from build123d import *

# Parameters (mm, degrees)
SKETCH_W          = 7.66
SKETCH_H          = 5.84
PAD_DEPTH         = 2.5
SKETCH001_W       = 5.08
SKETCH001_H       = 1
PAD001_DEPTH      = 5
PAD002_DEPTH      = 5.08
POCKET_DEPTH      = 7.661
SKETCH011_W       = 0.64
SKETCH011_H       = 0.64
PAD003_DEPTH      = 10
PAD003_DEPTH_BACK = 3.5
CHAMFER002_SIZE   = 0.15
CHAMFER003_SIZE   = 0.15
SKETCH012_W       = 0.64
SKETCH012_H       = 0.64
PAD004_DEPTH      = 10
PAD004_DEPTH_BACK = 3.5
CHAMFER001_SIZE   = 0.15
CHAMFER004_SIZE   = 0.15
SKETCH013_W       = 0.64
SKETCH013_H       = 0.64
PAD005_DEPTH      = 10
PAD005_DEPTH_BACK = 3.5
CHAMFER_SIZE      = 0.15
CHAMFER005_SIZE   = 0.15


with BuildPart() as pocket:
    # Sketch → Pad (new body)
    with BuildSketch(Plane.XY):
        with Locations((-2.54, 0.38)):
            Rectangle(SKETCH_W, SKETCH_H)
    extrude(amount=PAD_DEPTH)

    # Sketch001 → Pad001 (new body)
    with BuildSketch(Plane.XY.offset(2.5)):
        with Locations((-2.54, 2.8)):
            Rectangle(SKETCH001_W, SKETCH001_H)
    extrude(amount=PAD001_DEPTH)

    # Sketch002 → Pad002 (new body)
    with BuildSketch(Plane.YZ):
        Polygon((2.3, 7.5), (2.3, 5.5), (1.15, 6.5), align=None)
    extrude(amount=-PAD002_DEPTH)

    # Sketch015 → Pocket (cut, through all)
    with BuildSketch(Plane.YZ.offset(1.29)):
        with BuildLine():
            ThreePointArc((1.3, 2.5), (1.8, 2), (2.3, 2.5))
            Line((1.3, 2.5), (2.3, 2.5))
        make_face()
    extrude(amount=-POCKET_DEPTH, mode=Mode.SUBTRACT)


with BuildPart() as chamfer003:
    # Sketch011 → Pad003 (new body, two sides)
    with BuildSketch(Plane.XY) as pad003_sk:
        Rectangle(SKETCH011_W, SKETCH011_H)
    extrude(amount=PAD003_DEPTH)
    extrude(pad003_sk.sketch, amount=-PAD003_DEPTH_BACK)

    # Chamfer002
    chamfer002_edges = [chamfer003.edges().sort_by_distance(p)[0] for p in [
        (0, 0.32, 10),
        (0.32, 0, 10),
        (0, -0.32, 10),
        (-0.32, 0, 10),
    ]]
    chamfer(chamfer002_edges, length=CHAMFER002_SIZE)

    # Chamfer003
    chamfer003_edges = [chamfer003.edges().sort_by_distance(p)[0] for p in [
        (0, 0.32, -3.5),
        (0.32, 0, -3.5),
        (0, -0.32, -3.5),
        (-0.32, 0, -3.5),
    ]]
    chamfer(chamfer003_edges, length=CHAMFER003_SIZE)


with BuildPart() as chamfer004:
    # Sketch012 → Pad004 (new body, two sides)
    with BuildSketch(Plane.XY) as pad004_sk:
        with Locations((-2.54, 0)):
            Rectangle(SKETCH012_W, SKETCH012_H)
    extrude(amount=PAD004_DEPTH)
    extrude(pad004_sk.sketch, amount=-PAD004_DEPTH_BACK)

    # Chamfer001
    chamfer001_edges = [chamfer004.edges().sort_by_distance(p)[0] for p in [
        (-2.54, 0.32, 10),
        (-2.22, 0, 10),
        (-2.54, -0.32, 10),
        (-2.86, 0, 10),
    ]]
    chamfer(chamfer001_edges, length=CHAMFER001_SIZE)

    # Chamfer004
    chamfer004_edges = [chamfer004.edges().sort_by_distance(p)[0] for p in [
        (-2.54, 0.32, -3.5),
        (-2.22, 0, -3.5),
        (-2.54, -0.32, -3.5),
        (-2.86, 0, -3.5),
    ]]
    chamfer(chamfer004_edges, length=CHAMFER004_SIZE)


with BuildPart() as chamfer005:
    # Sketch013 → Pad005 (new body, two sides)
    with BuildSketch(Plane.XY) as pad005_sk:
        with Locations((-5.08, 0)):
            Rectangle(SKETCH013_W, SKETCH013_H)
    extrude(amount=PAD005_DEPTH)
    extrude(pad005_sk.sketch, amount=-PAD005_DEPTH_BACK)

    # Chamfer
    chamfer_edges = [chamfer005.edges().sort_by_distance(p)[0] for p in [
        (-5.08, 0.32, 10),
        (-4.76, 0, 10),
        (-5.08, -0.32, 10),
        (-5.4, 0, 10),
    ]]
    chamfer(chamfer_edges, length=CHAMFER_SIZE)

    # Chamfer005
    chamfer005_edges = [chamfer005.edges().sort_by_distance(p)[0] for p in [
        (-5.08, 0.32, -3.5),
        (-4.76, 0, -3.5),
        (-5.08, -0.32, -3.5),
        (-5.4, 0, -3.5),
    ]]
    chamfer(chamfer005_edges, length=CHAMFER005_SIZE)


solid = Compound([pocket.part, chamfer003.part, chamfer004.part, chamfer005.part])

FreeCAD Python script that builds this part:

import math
import FreeCAD as App
import Part
import Sketcher

V = App.Vector


def edges_at(feature, points):
    """Names of the edges that pass closest to the given points."""
    edges = feature.Shape.Edges
    near = lambda p: min(range(len(edges)), key=lambda i: edges[i].distToShape(Part.Vertex(*p))[0])
    return sorted({f"Edge{near(p) + 1}" for p in points})

doc = App.newDocument("Part")
params = doc.addObject("Spreadsheet::Sheet", "Params")
for row, (alias, value) in enumerate([
    ("sketch1_width", "7.66 mm"),
    ("sketch1_height", "5.84 mm"),
    ("pad1_length", "2.5 mm"),
    ("sketch2_height", "1 mm"),
    ("sketch2_width", "5.08 mm"),
    ("pad2_length", "5 mm"),
    ("sketch3_height", "2 mm"),
    ("pad3_length", "5.08 mm"),
    ("sketch4_radius", "0.5 mm"),
    ("sketch5_width", "0.64 mm"),
    ("pad4_length", "10 mm"),
    ("pad4_length2", "3.5 mm"),
    ("chamfer_size", "0.15 mm"),
    ("chamfer2_size", "0.15 mm"),
    ("sketch6_width", "0.64 mm"),
    ("pad5_length", "10 mm"),
    ("pad5_length2", "3.5 mm"),
    ("chamfer3_size", "0.15 mm"),
    ("chamfer4_size", "0.15 mm"),
    ("sketch7_width", "0.64 mm"),
    ("pad6_length", "10 mm"),
    ("pad6_length2", "3.5 mm"),
    ("chamfer5_size", "0.15 mm"),
    ("chamfer6_size", "0.15 mm"),
], start=1):
    params.set(f"A{row}", alias)
    params.set(f"B{row}", "=" + value)
    params.setAlias(f"B{row}", alias)

body = doc.addObject("PartDesign::Body", "Body")

sketch1 = body.newObject("Sketcher::SketchObject", "Sketch")
sketch1.AttachmentSupport = (doc.getObject("XY_Plane"), [""])
sketch1.MapMode = "FlatFace"
sketch1.addGeometry([
    Part.LineSegment(V(-6, 3, 0), V(-6, -3, 0)),
    Part.LineSegment(V(-6, -3, 0), V(1, -3, 0)),
    Part.LineSegment(V(1, -3, 0), V(1, 3, 0)),
    Part.LineSegment(V(1, 3, 0), V(-6, 3, 0)),
], False)
sketch1.addConstraint([
    Sketcher.Constraint("Coincident", 0, 2, 1, 1),
    Sketcher.Constraint("Coincident", 1, 2, 2, 1),
    Sketcher.Constraint("Coincident", 2, 2, 3, 1),
    Sketcher.Constraint("Coincident", 3, 2, 0, 1),
    Sketcher.Constraint("Vertical", 0),
    Sketcher.Constraint("Horizontal", 1),
    Sketcher.Constraint("Vertical", 2),
    Sketcher.Constraint("Horizontal", 3),
    Sketcher.Constraint("DistanceX", 1, 1, 1, 2, 7.66),
    Sketcher.Constraint("DistanceY", 0, 2, 0, 1, 5.84),
    Sketcher.Constraint("DistanceY", -1, 1, 2, 2, 3.3),
    Sketcher.Constraint("DistanceX", 0, 2, -1, 1, 6.37),
])
sketch1.setExpression("Constraints[8]", "Params.sketch1_width")
sketch1.setExpression("Constraints[9]", "Params.sketch1_height")
pad1 = body.newObject("PartDesign::Pad", "Pad")
pad1.Profile = sketch1
pad1.setExpression("Length", "Params.pad1_length")

sketch2 = body.newObject("Sketcher::SketchObject", "Sketch001")
sketch2.AttachmentSupport = (doc.getObject("XY_Plane"), [""])
sketch2.MapMode = "FlatFace"
sketch2.AttachmentOffset = App.Placement(V(0, 0, 2.5), App.Rotation())
sketch2.addGeometry([
    Part.LineSegment(V(-5.1, 3.3, 0), V(-5.1, 2.3, 0)),
    Part.LineSegment(V(-5.1, 2.3, 0), V(0, 2.3, 0)),
    Part.LineSegment(V(0, 2.3, 0), V(0, 3.3, 0)),
    Part.LineSegment(V(0, 3.3, 0), V(-5.1, 3.3, 0)),
], False)
sketch2.addConstraint([
    Sketcher.Constraint("Coincident", 0, 2, 1, 1),
    Sketcher.Constraint("Coincident", 1, 2, 2, 1),
    Sketcher.Constraint("Coincident", 2, 2, 3, 1),
    Sketcher.Constraint("Coincident", 3, 2, 0, 1),
    Sketcher.Constraint("Vertical", 0),
    Sketcher.Constraint("Horizontal", 1),
    Sketcher.Constraint("Vertical", 2),
    Sketcher.Constraint("Horizontal", 3),
    Sketcher.Constraint("PointOnObject", 1, 2, -2),
    Sketcher.Constraint("DistanceY", 0, 2, 0, 1, 1.0),
    Sketcher.Constraint("DistanceX", 1, 1, 1, 2, 5.08),
    Sketcher.Constraint("DistanceY", -1, 1, 0, 2, 2.3),
])
sketch2.setExpression("Constraints[9]", "Params.sketch2_height")
sketch2.setExpression("Constraints[10]", "Params.sketch2_width")
pad2 = body.newObject("PartDesign::Pad", "Pad001")
pad2.Profile = sketch2
pad2.setExpression("Length", "Params.pad2_length")

sketch3 = body.newObject("Sketcher::SketchObject", "Sketch002")
sketch3.AttachmentSupport = (doc.getObject("YZ_Plane"), [""])
sketch3.MapMode = "FlatFace"
sketch3.addGeometry([
    Part.LineSegment(V(2.3, 5.5, 0), V(2.3, 7.5, 0)),
    Part.LineSegment(V(2.3, 7.5, 0), V(1.1, 6.5, 0)),
    Part.LineSegment(V(1.1, 6.5, 0), V(2.3, 5.5, 0)),
], False)
sketch3.addConstraint([
    Sketcher.Constraint("Coincident", 0, 2, 1, 1),
    Sketcher.Constraint("Coincident", 1, 2, 2, 1),
    Sketcher.Constraint("Coincident", 2, 2, 0, 1),
    Sketcher.Constraint("Vertical", 0),
    Sketcher.Constraint("Equal", 1, 2),
    Sketcher.Constraint("DistanceY", 0, 1, 0, 2, 2.0),
    Sketcher.Constraint("DistanceX", -1, 1, 0, 2, 2.3),
    Sketcher.Constraint("DistanceY", -1, 1, 0, 2, 7.5),
    Sketcher.Constraint("DistanceX", -1, 1, 1, 2, 1.15),
])
sketch3.setExpression("Constraints[5]", "Params.sketch3_height")
pad3 = body.newObject("PartDesign::Pad", "Pad002")
pad3.Profile = sketch3
pad3.setExpression("Length", "Params.pad3_length")
pad3.Reversed = True

sketch4 = body.newObject("Sketcher::SketchObject", "Sketch003")
sketch4.AttachmentSupport = (doc.getObject("YZ_Plane"), [""])
sketch4.MapMode = "FlatFace"
sketch4.AttachmentOffset = App.Placement(V(0, 0, 1.29), App.Rotation())
sketch4.addGeometry([
    Part.ArcOfCircle(Part.Circle(V(1.8, 2.5, 0), V(0, 0, 1), 0.5), math.radians(180), math.radians(360)),
    Part.LineSegment(V(2.3, 2.5, 0), V(1.3, 2.5, 0)),
], False)
sketch4.addConstraint([
    Sketcher.Constraint("Coincident", 0, 1, 1, 2),
    Sketcher.Constraint("Coincident", 1, 1, 0, 2),
    Sketcher.Constraint("Horizontal", 1),
    Sketcher.Constraint("Radius", 0, 0.5),
    Sketcher.Constraint("DistanceX", -1, 1, 0, 3, 1.8),
    Sketcher.Constraint("DistanceY", -1, 1, 0, 3, 2.5),
    Sketcher.Constraint("DistanceY", -1, 1, 0, 1, 2.5),
])
sketch4.setExpression("Constraints[3]", "Params.sketch4_radius")
pocket1 = body.newObject("PartDesign::Pocket", "Pocket")
pocket1.Profile = sketch4
pocket1.Type = "ThroughAll"
body2 = doc.addObject("PartDesign::Body", "Body001")

sketch5 = body2.newObject("Sketcher::SketchObject", "Sketch004")
sketch5.AttachmentSupport = (doc.getObject("XY_Plane001"), [""])
sketch5.MapMode = "FlatFace"
sketch5.addGeometry([
    Part.LineSegment(V(-0.3, 0.3, 0), V(-0.3, -0.3, 0)),
    Part.LineSegment(V(-0.3, -0.3, 0), V(0.3, -0.3, 0)),
    Part.LineSegment(V(0.3, -0.3, 0), V(0.3, 0.3, 0)),
    Part.LineSegment(V(0.3, 0.3, 0), V(-0.3, 0.3, 0)),
], False)
sketch5.addConstraint([
    Sketcher.Constraint("Coincident", 0, 2, 1, 1),
    Sketcher.Constraint("Coincident", 1, 2, 2, 1),
    Sketcher.Constraint("Coincident", 2, 2, 3, 1),
    Sketcher.Constraint("Coincident", 3, 2, 0, 1),
    Sketcher.Constraint("Vertical", 0),
    Sketcher.Constraint("Horizontal", 1),
    Sketcher.Constraint("Vertical", 2),
    Sketcher.Constraint("Horizontal", 3),
    Sketcher.Constraint("Symmetric", 0, 2, 2, 2, -1, 1),
    Sketcher.Constraint("Equal", 3, 0),
    Sketcher.Constraint("DistanceX", 1, 1, 1, 2, 0.64),
])
sketch5.setExpression("Constraints[10]", "Params.sketch5_width")
pad4 = body2.newObject("PartDesign::Pad", "Pad003")
pad4.Profile = sketch5
pad4.Type = "TwoLengths"
pad4.setExpression("Length", "Params.pad4_length")
pad4.setExpression("Length2", "Params.pad4_length2")
doc.recompute()

chamfer = body2.newObject("PartDesign::Chamfer", "Chamfer")
chamfer.Base = (pad4, edges_at(pad4, [
    (0, 0.32, 10),
    (0.32, 0, 10),
    (0, -0.32, 10),
    (-0.32, 0, 10),
]))
chamfer.setExpression("Size", "Params.chamfer_size")
doc.recompute()

chamfer2 = body2.newObject("PartDesign::Chamfer", "Chamfer001")
chamfer2.Base = (chamfer, edges_at(chamfer, [
    (0, 0.32, -3.5),
    (0.32, 0, -3.5),
    (0, -0.32, -3.5),
    (-0.32, 0, -3.5),
]))
chamfer2.setExpression("Size", "Params.chamfer2_size")
body3 = doc.addObject("PartDesign::Body", "Body002")

sketch6 = body3.newObject("Sketcher::SketchObject", "Sketch005")
sketch6.AttachmentSupport = (doc.getObject("XY_Plane002"), [""])
sketch6.MapMode = "FlatFace"
sketch6.addGeometry([
    Part.LineSegment(V(-2.9, 0.3, 0), V(-2.9, -0.3, 0)),
    Part.LineSegment(V(-2.9, -0.3, 0), V(-2.2, -0.3, 0)),
    Part.LineSegment(V(-2.2, -0.3, 0), V(-2.2, 0.3, 0)),
    Part.LineSegment(V(-2.2, 0.3, 0), V(-2.9, 0.3, 0)),
], False)
sketch6.addConstraint([
    Sketcher.Constraint("Coincident", 0, 2, 1, 1),
    Sketcher.Constraint("Coincident", 1, 2, 2, 1),
    Sketcher.Constraint("Coincident", 2, 2, 3, 1),
    Sketcher.Constraint("Coincident", 3, 2, 0, 1),
    Sketcher.Constraint("Vertical", 0),
    Sketcher.Constraint("Horizontal", 1),
    Sketcher.Constraint("Vertical", 2),
    Sketcher.Constraint("Horizontal", 3),
    Sketcher.Constraint("Equal", 3, 0),
    Sketcher.Constraint("DistanceX", 1, 1, 1, 2, 0.64),
    Sketcher.Constraint("DistanceX", 0, 2, -1, 1, 2.86),
    Sketcher.Constraint("DistanceY", 0, 2, -1, 1, 0.32),
])
sketch6.setExpression("Constraints[9]", "Params.sketch6_width")
pad5 = body3.newObject("PartDesign::Pad", "Pad004")
pad5.Profile = sketch6
pad5.Type = "TwoLengths"
pad5.setExpression("Length", "Params.pad5_length")
pad5.setExpression("Length2", "Params.pad5_length2")
doc.recompute()

chamfer3 = body3.newObject("PartDesign::Chamfer", "Chamfer002")
chamfer3.Base = (pad5, edges_at(pad5, [
    (-2.54, 0.32, 10),
    (-2.22, 0, 10),
    (-2.54, -0.32, 10),
    (-2.86, 0, 10),
]))
chamfer3.setExpression("Size", "Params.chamfer3_size")
doc.recompute()

chamfer4 = body3.newObject("PartDesign::Chamfer", "Chamfer003")
chamfer4.Base = (chamfer3, edges_at(chamfer3, [
    (-2.54, 0.32, -3.5),
    (-2.22, 0, -3.5),
    (-2.54, -0.32, -3.5),
    (-2.86, 0, -3.5),
]))
chamfer4.setExpression("Size", "Params.chamfer4_size")
body4 = doc.addObject("PartDesign::Body", "Body003")

sketch7 = body4.newObject("Sketcher::SketchObject", "Sketch006")
sketch7.AttachmentSupport = (doc.getObject("XY_Plane003"), [""])
sketch7.MapMode = "FlatFace"
sketch7.addGeometry([
    Part.LineSegment(V(-5.4, 0.3, 0), V(-5.4, -0.3, 0)),
    Part.LineSegment(V(-5.4, -0.3, 0), V(-4.8, -0.3, 0)),
    Part.LineSegment(V(-4.8, -0.3, 0), V(-4.8, 0.3, 0)),
    Part.LineSegment(V(-4.8, 0.3, 0), V(-5.4, 0.3, 0)),
], False)
sketch7.addConstraint([
    Sketcher.Constraint("Coincident", 0, 2, 1, 1),
    Sketcher.Constraint("Coincident", 1, 2, 2, 1),
    Sketcher.Constraint("Coincident", 2, 2, 3, 1),
    Sketcher.Constraint("Coincident", 3, 2, 0, 1),
    Sketcher.Constraint("Vertical", 0),
    Sketcher.Constraint("Horizontal", 1),
    Sketcher.Constraint("Vertical", 2),
    Sketcher.Constraint("Horizontal", 3),
    Sketcher.Constraint("Equal", 3, 0),
    Sketcher.Constraint("DistanceX", 1, 1, 1, 2, 0.64),
    Sketcher.Constraint("DistanceX", 0, 2, -1, 1, 5.4),
    Sketcher.Constraint("DistanceY", 0, 2, -1, 1, 0.32),
])
sketch7.setExpression("Constraints[9]", "Params.sketch7_width")
pad6 = body4.newObject("PartDesign::Pad", "Pad005")
pad6.Profile = sketch7
pad6.Type = "TwoLengths"
pad6.setExpression("Length", "Params.pad6_length")
pad6.setExpression("Length2", "Params.pad6_length2")
doc.recompute()

chamfer5 = body4.newObject("PartDesign::Chamfer", "Chamfer004")
chamfer5.Base = (pad6, edges_at(pad6, [
    (-5.08, 0.32, 10),
    (-4.76, 0, 10),
    (-5.08, -0.32, 10),
    (-5.4, 0, 10),
]))
chamfer5.setExpression("Size", "Params.chamfer5_size")
doc.recompute()

chamfer6 = body4.newObject("PartDesign::Chamfer", "Chamfer005")
chamfer6.Base = (chamfer5, edges_at(chamfer5, [
    (-5.08, 0.32, -3.5),
    (-4.76, 0, -3.5),
    (-5.08, -0.32, -3.5),
    (-5.4, 0, -3.5),
]))
chamfer6.setExpression("Size", "Params.chamfer6_size")

doc.recompute()
